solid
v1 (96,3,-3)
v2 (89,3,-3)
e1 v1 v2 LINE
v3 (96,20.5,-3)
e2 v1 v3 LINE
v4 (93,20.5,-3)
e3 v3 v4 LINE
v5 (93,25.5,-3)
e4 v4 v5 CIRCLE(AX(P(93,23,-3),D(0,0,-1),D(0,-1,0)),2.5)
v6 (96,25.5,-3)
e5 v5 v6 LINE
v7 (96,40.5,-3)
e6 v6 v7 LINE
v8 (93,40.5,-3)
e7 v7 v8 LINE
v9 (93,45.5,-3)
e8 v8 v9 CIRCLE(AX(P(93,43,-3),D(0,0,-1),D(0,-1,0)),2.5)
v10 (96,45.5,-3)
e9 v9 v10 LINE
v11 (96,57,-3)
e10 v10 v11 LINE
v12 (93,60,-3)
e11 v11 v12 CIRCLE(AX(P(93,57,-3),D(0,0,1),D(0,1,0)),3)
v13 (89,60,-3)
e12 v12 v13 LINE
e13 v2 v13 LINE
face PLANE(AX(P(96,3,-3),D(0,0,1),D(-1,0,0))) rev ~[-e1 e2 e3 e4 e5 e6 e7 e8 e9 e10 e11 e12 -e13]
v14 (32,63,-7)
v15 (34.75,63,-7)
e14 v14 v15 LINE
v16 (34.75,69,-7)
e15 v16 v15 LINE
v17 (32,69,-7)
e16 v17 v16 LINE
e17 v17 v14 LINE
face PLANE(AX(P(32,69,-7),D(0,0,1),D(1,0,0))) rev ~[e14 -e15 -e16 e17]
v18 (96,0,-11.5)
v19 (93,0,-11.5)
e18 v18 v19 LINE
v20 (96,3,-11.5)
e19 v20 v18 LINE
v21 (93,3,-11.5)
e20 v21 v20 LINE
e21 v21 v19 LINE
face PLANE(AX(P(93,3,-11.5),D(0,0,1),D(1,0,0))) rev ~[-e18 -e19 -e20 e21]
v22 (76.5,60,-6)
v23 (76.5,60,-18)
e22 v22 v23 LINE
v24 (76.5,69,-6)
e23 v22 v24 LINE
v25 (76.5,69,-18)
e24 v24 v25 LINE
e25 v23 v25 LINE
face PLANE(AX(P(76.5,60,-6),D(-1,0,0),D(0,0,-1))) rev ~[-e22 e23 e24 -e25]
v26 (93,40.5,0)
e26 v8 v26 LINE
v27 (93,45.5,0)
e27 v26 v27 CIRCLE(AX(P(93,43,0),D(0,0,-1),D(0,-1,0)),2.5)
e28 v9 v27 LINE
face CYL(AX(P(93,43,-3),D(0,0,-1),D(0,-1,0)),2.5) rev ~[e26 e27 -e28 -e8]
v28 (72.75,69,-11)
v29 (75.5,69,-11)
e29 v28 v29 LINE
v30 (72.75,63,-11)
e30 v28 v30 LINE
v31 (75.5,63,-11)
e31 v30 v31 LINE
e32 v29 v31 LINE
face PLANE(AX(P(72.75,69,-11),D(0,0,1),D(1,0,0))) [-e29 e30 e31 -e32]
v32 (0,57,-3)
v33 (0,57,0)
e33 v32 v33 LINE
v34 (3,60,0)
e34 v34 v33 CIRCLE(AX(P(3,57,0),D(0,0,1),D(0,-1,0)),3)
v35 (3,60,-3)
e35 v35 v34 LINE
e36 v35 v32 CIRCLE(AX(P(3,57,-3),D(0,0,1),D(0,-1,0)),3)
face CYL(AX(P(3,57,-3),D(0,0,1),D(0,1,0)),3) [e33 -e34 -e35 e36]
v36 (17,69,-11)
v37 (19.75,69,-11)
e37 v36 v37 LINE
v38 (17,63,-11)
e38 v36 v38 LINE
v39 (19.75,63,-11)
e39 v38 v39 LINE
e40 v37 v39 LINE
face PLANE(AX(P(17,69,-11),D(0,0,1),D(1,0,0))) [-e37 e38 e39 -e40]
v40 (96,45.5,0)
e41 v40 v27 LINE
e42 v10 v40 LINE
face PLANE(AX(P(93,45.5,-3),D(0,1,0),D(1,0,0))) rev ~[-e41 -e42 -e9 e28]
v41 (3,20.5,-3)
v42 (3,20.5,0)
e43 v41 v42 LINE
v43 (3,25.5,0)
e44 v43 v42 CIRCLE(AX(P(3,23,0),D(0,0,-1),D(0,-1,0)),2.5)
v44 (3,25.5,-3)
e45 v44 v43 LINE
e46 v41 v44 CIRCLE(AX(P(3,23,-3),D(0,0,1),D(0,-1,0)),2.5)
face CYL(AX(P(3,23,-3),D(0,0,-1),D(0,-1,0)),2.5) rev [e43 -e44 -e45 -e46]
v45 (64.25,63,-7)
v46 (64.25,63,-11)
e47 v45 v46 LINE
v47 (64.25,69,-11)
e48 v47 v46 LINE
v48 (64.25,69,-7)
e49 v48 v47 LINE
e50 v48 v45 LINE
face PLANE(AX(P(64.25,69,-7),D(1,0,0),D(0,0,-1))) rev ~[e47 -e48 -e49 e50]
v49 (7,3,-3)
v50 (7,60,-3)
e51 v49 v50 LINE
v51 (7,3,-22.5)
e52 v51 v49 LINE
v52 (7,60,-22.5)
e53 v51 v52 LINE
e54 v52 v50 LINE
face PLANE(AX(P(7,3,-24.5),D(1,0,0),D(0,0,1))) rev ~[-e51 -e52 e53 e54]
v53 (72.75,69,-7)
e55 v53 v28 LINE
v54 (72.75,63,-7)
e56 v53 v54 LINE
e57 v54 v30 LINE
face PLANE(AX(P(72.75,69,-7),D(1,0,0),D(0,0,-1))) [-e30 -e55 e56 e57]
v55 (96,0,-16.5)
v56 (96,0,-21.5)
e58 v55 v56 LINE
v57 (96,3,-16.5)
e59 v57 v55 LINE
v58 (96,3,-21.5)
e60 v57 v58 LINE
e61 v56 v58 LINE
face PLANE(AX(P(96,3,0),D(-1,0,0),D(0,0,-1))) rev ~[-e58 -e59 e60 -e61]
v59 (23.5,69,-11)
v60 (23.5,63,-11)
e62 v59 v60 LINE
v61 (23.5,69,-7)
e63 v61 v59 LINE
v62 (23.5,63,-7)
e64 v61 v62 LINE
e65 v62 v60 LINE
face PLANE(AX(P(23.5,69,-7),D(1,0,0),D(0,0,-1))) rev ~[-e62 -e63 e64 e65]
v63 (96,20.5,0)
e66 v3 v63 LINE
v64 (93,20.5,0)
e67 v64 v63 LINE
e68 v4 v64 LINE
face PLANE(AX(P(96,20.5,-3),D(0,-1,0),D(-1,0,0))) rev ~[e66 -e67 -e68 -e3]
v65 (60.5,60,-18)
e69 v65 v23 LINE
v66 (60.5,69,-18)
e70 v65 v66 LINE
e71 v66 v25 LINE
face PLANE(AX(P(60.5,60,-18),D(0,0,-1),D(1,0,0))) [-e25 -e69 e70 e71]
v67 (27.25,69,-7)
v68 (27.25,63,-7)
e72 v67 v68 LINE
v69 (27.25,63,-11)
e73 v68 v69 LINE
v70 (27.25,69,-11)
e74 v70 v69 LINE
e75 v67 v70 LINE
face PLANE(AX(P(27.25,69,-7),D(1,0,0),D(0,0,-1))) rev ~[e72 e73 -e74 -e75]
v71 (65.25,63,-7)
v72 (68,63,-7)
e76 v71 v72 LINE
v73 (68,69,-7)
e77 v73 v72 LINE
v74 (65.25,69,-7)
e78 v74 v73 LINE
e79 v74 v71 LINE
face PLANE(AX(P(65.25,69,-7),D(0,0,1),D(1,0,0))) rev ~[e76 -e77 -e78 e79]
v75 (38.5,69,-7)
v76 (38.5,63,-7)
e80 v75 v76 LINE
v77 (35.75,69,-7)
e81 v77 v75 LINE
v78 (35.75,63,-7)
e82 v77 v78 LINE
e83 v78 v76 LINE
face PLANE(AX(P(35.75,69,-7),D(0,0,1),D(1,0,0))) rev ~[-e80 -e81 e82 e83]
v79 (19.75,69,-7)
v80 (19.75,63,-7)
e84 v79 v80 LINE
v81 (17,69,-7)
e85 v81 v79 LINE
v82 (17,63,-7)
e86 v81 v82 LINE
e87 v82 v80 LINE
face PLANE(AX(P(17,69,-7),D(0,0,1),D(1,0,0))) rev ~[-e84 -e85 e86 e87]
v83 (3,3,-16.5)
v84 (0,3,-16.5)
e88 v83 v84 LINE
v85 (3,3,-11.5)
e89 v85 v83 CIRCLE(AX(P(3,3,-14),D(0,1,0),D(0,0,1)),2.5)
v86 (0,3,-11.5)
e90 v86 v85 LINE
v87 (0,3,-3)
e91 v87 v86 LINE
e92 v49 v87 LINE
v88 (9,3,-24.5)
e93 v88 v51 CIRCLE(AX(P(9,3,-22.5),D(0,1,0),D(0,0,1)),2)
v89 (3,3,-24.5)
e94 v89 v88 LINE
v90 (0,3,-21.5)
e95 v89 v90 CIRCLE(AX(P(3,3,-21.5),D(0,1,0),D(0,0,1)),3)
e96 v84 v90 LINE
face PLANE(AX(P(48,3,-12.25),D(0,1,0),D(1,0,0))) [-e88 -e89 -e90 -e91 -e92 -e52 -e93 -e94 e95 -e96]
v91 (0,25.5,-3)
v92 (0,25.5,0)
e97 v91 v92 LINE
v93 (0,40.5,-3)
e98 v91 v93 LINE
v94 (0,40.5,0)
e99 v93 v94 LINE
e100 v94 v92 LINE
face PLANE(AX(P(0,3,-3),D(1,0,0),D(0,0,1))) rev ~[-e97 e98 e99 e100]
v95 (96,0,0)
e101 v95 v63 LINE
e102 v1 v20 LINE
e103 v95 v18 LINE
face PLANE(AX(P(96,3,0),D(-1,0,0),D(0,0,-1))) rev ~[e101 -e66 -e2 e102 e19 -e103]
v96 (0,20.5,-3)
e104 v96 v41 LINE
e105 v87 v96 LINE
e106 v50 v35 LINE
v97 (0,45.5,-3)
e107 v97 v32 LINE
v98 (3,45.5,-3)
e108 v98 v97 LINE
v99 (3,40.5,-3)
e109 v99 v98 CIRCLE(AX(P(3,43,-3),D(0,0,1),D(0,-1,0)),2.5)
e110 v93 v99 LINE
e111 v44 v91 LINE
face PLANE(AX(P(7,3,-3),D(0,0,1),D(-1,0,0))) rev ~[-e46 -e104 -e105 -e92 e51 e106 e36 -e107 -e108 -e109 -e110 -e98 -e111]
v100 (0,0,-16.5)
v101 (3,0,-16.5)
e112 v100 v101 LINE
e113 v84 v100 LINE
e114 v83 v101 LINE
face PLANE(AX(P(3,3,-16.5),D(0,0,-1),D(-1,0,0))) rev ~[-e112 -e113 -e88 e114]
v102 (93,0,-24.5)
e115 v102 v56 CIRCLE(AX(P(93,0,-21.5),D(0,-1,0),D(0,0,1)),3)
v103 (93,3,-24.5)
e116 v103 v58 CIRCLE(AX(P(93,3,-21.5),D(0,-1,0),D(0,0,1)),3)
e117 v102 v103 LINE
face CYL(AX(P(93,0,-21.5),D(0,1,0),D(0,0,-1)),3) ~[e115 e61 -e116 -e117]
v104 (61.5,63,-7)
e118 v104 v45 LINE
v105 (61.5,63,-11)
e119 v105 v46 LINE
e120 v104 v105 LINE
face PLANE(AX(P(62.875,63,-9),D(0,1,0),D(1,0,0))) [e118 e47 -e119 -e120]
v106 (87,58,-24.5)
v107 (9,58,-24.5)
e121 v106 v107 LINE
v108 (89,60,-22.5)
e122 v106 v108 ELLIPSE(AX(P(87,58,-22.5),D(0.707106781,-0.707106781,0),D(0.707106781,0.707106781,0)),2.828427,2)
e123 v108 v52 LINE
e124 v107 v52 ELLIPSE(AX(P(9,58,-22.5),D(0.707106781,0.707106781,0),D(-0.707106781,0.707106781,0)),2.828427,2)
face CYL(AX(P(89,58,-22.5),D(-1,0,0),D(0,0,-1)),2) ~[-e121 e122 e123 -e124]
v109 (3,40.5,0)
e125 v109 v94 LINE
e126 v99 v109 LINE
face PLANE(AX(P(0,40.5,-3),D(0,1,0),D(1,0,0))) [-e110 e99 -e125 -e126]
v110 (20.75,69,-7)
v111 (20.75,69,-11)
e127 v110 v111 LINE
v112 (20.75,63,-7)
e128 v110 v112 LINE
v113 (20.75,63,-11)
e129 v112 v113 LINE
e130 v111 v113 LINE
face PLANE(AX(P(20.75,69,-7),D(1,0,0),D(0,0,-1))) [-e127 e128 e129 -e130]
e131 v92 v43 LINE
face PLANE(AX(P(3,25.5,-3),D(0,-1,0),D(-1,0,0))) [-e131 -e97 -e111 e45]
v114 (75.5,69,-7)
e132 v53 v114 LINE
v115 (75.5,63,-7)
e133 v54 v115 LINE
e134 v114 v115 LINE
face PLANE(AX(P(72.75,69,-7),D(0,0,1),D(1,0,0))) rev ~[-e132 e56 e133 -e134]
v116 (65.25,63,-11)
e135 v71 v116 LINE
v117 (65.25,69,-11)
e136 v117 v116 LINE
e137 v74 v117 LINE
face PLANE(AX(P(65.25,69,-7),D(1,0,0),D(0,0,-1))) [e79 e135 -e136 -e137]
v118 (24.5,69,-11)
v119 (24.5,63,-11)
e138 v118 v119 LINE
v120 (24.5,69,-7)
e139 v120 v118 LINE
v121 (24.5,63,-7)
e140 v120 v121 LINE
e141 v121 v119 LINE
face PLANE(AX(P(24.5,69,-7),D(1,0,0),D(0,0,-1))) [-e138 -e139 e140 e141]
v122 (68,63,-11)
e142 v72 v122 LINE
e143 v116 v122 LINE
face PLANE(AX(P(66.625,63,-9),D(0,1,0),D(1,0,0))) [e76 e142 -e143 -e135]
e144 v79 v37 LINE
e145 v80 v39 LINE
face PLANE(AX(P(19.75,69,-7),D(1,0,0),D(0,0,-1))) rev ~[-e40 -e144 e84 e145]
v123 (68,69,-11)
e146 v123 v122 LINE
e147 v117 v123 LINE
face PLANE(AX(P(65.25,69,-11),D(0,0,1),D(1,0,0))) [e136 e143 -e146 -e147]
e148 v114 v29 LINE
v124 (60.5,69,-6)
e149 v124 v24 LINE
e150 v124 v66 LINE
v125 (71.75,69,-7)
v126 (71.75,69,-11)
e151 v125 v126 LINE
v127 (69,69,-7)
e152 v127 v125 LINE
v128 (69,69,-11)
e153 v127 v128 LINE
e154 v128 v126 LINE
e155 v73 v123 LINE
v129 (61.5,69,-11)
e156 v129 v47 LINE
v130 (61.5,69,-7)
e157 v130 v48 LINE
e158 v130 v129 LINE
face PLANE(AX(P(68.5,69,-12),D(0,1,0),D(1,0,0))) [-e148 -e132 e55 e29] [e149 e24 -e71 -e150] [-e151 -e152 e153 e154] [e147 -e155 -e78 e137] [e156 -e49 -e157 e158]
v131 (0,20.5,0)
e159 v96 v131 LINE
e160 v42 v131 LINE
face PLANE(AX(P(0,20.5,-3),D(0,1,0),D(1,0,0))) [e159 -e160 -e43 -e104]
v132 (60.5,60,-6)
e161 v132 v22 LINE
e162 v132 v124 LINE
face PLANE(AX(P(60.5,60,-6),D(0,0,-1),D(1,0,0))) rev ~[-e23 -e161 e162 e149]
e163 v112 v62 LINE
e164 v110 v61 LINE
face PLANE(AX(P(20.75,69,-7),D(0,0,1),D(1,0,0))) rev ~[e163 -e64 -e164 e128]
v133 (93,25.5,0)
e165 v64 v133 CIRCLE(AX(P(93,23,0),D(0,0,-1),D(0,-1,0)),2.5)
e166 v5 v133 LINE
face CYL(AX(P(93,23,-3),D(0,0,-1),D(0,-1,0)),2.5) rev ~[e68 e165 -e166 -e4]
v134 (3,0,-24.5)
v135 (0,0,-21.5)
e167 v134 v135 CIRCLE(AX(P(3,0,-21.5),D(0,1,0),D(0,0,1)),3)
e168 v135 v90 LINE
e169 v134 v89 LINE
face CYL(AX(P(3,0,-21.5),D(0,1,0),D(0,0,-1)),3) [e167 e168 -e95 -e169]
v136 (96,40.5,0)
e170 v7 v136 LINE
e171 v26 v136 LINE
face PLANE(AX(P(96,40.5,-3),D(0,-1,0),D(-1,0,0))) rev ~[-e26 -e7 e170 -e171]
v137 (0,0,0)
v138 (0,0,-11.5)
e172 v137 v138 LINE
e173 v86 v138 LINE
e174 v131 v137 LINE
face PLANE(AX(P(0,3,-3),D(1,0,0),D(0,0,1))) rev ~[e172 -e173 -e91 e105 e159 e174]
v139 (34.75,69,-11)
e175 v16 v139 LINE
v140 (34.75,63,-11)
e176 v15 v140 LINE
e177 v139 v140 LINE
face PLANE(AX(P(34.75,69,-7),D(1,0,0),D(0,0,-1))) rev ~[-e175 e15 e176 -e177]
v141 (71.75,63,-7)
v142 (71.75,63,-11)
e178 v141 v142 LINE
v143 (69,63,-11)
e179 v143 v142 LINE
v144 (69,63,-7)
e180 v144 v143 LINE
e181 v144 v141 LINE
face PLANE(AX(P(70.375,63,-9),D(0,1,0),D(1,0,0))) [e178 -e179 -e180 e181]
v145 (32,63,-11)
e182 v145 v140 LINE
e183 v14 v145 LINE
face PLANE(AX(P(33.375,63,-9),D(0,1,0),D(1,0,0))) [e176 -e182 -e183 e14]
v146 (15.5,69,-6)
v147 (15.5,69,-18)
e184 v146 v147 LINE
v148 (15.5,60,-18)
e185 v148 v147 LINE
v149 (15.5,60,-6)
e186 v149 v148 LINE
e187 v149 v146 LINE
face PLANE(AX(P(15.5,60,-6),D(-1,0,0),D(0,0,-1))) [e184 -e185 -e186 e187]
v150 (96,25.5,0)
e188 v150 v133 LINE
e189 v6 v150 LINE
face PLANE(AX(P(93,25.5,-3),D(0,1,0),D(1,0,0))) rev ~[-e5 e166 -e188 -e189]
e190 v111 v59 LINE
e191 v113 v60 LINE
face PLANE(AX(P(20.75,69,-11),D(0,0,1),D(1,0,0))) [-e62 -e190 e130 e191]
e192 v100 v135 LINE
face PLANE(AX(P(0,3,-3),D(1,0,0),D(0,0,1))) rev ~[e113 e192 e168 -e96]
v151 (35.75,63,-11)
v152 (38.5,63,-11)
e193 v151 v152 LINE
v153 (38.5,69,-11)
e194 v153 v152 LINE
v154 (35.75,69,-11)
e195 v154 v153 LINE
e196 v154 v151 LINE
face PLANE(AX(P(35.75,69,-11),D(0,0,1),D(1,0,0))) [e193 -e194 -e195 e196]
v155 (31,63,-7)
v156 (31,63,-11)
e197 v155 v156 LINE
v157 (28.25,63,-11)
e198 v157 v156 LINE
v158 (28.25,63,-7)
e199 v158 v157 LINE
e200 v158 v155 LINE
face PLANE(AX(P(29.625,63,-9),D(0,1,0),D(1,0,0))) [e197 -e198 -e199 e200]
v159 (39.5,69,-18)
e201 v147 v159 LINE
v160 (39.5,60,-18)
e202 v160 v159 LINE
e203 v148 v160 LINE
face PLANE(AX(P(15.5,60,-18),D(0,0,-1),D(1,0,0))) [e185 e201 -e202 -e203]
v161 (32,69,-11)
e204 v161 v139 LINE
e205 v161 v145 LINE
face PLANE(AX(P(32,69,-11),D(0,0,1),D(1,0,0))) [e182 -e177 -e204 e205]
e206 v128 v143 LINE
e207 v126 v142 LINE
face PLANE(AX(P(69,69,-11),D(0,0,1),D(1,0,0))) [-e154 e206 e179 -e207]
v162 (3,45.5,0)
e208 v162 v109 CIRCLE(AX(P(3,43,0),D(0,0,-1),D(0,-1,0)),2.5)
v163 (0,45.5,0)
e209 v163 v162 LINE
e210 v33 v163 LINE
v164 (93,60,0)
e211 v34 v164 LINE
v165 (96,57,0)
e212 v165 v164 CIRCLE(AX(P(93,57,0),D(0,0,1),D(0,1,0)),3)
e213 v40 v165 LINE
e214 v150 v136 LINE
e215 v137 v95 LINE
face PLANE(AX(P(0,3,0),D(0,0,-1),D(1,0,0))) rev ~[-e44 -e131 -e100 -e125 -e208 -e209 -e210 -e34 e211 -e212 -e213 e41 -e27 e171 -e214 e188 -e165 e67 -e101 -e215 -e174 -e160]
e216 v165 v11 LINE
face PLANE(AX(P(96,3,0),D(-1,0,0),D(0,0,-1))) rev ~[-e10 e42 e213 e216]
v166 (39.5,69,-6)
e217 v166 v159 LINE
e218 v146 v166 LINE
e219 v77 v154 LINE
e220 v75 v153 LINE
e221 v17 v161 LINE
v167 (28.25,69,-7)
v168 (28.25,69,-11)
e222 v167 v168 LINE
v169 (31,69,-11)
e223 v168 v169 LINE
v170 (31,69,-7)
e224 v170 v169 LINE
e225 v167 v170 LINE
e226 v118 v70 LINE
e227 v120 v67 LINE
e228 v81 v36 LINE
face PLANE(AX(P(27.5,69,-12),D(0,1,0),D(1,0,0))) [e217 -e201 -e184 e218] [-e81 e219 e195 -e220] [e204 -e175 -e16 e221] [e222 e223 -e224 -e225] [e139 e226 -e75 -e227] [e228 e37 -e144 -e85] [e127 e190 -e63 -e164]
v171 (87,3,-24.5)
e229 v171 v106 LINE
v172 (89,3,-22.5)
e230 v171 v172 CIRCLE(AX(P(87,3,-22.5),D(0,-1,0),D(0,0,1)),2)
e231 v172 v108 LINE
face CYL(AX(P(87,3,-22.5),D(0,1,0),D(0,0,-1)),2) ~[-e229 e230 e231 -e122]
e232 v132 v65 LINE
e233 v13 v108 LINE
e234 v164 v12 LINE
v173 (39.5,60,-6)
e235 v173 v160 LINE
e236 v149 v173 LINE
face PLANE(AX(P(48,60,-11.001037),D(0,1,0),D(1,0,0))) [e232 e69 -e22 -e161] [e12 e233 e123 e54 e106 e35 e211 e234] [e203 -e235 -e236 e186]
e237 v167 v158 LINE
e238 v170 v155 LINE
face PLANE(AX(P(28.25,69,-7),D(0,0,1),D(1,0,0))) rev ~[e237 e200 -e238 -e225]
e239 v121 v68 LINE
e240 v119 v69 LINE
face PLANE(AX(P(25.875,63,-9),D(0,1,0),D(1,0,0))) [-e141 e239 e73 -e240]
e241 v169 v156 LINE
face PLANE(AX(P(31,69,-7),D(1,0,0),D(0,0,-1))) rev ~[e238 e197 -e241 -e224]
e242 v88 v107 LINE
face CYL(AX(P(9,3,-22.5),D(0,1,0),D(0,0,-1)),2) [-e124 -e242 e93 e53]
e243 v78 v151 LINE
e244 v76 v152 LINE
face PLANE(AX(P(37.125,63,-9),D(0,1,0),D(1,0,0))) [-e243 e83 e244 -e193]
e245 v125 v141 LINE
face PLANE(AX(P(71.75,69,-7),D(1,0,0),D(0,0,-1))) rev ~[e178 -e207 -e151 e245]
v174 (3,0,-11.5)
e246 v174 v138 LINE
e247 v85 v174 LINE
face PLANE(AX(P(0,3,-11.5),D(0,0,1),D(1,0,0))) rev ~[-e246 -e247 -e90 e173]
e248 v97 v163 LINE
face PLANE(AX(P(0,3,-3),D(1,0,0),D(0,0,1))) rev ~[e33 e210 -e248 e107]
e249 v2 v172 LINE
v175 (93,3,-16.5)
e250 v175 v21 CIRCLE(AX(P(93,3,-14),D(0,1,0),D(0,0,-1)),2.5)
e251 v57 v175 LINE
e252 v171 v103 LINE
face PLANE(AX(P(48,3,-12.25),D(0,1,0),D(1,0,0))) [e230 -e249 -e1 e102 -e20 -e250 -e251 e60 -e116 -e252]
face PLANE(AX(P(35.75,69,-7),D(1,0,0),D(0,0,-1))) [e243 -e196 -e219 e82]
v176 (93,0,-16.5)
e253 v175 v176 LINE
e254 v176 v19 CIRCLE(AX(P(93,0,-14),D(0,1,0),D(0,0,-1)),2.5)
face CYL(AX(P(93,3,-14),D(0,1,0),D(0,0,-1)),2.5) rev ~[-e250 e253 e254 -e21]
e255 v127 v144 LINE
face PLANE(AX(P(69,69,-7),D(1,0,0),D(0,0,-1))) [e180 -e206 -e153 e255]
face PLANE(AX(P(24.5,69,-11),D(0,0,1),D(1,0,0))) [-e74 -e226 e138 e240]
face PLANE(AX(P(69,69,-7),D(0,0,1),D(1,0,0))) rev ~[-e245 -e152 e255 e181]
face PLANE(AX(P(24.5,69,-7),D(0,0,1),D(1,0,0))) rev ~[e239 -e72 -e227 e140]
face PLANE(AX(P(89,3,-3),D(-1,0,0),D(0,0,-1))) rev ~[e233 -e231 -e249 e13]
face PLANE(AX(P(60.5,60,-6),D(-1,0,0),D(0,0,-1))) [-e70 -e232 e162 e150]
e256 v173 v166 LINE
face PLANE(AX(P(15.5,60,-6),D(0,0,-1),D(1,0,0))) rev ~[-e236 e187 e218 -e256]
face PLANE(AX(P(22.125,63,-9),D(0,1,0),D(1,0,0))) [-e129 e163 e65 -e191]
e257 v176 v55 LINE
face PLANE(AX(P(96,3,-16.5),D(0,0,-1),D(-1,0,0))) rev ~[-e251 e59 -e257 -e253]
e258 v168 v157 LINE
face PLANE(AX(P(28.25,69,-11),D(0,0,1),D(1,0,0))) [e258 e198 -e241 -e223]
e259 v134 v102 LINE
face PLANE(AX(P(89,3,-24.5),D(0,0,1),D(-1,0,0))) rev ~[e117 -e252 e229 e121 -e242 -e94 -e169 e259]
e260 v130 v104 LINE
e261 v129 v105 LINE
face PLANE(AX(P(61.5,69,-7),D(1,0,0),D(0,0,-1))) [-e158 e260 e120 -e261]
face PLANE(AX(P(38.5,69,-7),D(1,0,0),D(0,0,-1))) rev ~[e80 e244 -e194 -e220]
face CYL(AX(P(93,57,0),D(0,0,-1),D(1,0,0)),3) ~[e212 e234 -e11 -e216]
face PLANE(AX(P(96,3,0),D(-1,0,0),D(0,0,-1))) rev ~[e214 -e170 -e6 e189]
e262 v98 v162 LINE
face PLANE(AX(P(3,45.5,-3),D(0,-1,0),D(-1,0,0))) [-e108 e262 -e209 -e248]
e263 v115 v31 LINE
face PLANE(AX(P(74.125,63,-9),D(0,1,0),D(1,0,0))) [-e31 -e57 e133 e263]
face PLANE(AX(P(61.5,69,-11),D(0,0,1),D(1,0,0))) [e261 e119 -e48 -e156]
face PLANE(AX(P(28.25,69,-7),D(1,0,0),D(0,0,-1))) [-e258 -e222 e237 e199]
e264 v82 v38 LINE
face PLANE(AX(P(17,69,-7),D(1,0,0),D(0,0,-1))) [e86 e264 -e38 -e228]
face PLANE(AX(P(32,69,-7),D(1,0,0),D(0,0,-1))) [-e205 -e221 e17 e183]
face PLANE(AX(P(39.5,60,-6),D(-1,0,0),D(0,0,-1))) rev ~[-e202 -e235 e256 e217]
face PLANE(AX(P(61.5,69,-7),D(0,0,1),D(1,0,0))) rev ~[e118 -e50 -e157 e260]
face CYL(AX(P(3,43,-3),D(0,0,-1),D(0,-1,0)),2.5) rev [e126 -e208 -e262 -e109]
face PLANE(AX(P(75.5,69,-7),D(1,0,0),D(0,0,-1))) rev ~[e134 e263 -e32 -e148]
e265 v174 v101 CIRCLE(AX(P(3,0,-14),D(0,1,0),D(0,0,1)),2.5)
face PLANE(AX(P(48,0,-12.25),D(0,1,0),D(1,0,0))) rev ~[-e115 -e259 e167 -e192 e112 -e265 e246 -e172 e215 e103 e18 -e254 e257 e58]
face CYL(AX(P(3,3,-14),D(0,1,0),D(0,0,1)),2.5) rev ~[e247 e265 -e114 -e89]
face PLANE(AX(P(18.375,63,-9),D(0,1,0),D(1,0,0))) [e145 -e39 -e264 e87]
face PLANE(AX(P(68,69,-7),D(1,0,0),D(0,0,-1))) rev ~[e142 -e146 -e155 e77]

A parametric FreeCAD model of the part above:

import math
import FreeCAD as App
import Part
import Sketcher
Q = App.Units.Quantity


def edges_at(feature, points):
    """Names of the edges that pass closest to the given points."""
    edges = feature.Shape.Edges
    near = lambda p: min(range(len(edges)), key=lambda i: edges[i].distToShape(Part.Vertex(*p))[0])
    return sorted({f"Edge{near(p) + 1}" for p in points})

doc = App.newDocument("Part")
params = doc.addObject("Spreadsheet::Sheet", "Params")
for row, (alias, value) in enumerate([
    ("sketch1_width", "96 mm"),
    ("sketch1_height", "24.5 mm"),
    ("pad1_length", "3 mm"),
    ("sketch2_width", "96 mm"),
    ("sketch2_width2", "7 mm"),
    ("sketch2_height", "3 mm"),
    ("sketch2_height2", "21.5 mm"),
    ("pad2_length", "57 mm"),
    ("fillet_radius", "2 mm"),
    ("fillet2_radius", "3 mm"),
    ("sketch3_radius", "2.5 mm"),
    ("sketch3_width", "3 mm"),
    ("sketch4_radius", "2.5 mm"),
    ("sketch4_width", "3 mm"),
    ("sketch5_radius", "2.5 mm"),
    ("sketch5_width", "3 mm"),
    ("sketch6_radius", "2.5 mm"),
    ("sketch6_width", "3 mm"),
    ("sketch7_radius", "2.5 mm"),
    ("sketch7_width", "3 mm"),
    ("sketch8_radius", "2.5 mm"),
    ("sketch8_width", "3 mm"),
    ("sketch9_width", "16 mm"),
    ("sketch9_width2", "24 mm"),
    ("sketch9_height", "12 mm"),
    ("pad3_length", "9 mm"),
    ("sketch10_height", "4 mm"),
    ("sketch10_width", "2.75 mm"),
    ("pocket7_length", "6 mm"),
    ("linearpattern_pitch", "3.75 mm"),
    ("sketch11_height", "4 mm"),
    ("sketch11_width", "2.75 mm"),
    ("pocket8_length", "6 mm"),
    ("linearpattern2_pitch", "3.75 mm"),
], start=1):
    params.set(f"A{row}", alias)
    params.set(f"B{row}", "=" + value)
    params.setAlias(f"B{row}", alias)

body = doc.addObject("PartDesign::Body", "Body")

# Sketch on XZ plane
sketch1 = body.newObject("Sketcher::SketchObject", "Sketch")
sketch1.AttachmentSupport = (doc.getObject("XZ_Plane"), [""])
sketch1.MapMode = "FlatFace"
sketch1.addGeometry(Part.LineSegment(App.Vector(0, -24, 0), App.Vector(0, 0, 0)), False)
sketch1.addGeometry(Part.LineSegment(App.Vector(0, 0, 0), App.Vector(96, 0, 0)), False)
sketch1.addGeometry(Part.LineSegment(App.Vector(96, 0, 0), App.Vector(96, -24, 0)), False)
sketch1.addGeometry(Part.LineSegment(App.Vector(96, -24, 0), App.Vector(0, -24, 0)), False)
sketch1.addConstraint(Sketcher.Constraint("Coincident", 0, 2, 1, 1))
sketch1.addConstraint(Sketcher.Constraint("Coincident", 1, 2, 2, 1))
sketch1.addConstraint(Sketcher.Constraint("Coincident", 2, 2, 3, 1))
sketch1.addConstraint(Sketcher.Constraint("Coincident", 3, 2, 0, 1))
sketch1.addConstraint(Sketcher.Constraint("Vertical", 0))
sketch1.addConstraint(Sketcher.Constraint("Horizontal", 1))
sketch1.addConstraint(Sketcher.Constraint("Vertical", 2))
sketch1.addConstraint(Sketcher.Constraint("Horizontal", 3))
sketch1.addConstraint(Sketcher.Constraint("Coincident", 0, 2, -1, 1))
sketch1.addConstraint(Sketcher.Constraint("DistanceX", 1, 1, 1, 2, Q("96 mm")))
sketch1.addConstraint(Sketcher.Constraint("DistanceY", 0, 1, 0, 2, Q("24.5 mm")))
sketch1.setExpression("Constraints[9]", "Params.sketch1_width")
sketch1.setExpression("Constraints[10]", "Params.sketch1_height")
pad1 = body.newObject("PartDesign::Pad", "Pad")
pad1.Profile = sketch1
pad1.setExpression("Length", "Params.pad1_length")
pad1.Reversed = True

# Sketch on XZ plane
sketch2 = body.newObject("Sketcher::SketchObject", "Sketch001")
sketch2.AttachmentSupport = (doc.getObject("XZ_Plane"), [""])
sketch2.MapMode = "FlatFace"
sketch2.AttachmentOffset = App.Placement(App.Vector(0, 0, -3), App.Rotation())
sketch2.addGeometry(Part.LineSegment(App.Vector(0, 0, 0), App.Vector(96, 0, 0)), False)
sketch2.addGeometry(Part.LineSegment(App.Vector(96, 0, 0), App.Vector(96, -3, 0)), False)
sketch2.addGeometry(Part.LineSegment(App.Vector(96, -3, 0), App.Vector(89, -3, 0)), False)
sketch2.addGeometry(Part.LineSegment(App.Vector(89, -3, 0), App.Vector(89, -24.5, 0)), False)
sketch2.addGeometry(Part.LineSegment(App.Vector(89, -24.5, 0), App.Vector(7, -24.5, 0)), False)
sketch2.addGeometry(Part.LineSegment(App.Vector(7, -24.5, 0), App.Vector(7, -3, 0)), False)
sketch2.addGeometry(Part.LineSegment(App.Vector(7, -3, 0), App.Vector(0, -3, 0)), False)
sketch2.addGeometry(Part.LineSegment(App.Vector(0, -3, 0), App.Vector(0, 0, 0)), False)
sketch2.addConstraint(Sketcher.Constraint("Coincident", 0, 2, 1, 1))
sketch2.addConstraint(Sketcher.Constraint("Coincident", 1, 2, 2, 1))
sketch2.addConstraint(Sketcher.Constraint("Coincident", 2, 2, 3, 1))
sketch2.addConstraint(Sketcher.Constraint("Coincident", 3, 2, 4, 1))
sketch2.addConstraint(Sketcher.Constraint("Coincident", 4, 2, 5, 1))
sketch2.addConstraint(Sketcher.Constraint("Coincident", 5, 2, 6, 1))
sketch2.addConstraint(Sketcher.Constraint("Coincident", 6, 2, 7, 1))
sketch2.addConstraint(Sketcher.Constraint("Coincident", 7, 2, 0, 1))
sketch2.addConstraint(Sketcher.Constraint("Horizontal", 0))
sketch2.addConstraint(Sketcher.Constraint("Vertical", 1))
sketch2.addConstraint(Sketcher.Constraint("Horizontal", 2))
sketch2.addConstraint(Sketcher.Constraint("Vertical", 3))
sketch2.addConstraint(Sketcher.Constraint("Horizontal", 4))
sketch2.addConstraint(Sketcher.Constraint("Vertical", 5))
sketch2.addConstraint(Sketcher.Constraint("Horizontal", 6))
sketch2.addConstraint(Sketcher.Constraint("Vertical", 7))
sketch2.addConstraint(Sketcher.Constraint("Coincident", 7, 2, -1, 1))
sketch2.addConstraint(Sketcher.Constraint("Horizontal", 2, 2, 5, 2))
sketch2.addConstraint(Sketcher.Constraint("Equal", 2, 6))
sketch2.addConstraint(Sketcher.Constraint("DistanceX", 0, 1, 0, 2, Q("96 mm")))
sketch2.addConstraint(Sketcher.Constraint("DistanceX", 2, 2, 2, 1, Q("7 mm")))
sketch2.addConstraint(Sketcher.Constraint("DistanceY", 1, 2, 1, 1, Q("3 mm")))
sketch2.addConstraint(Sketcher.Constraint("DistanceY", 3, 2, 3, 1, Q("21.5 mm")))
sketch2.setExpression("Constraints[19]", "Params.sketch2_width")
sketch2.setExpression("Constraints[20]", "Params.sketch2_width2")
sketch2.setExpression("Constraints[21]", "Params.sketch2_height")
sketch2.setExpression("Constraints[22]", "Params.sketch2_height2")
pad2 = body.newObject("PartDesign::Pad", "Pad001")
pad2.Profile = sketch2
pad2.setExpression("Length", "Params.pad2_length")
pad2.Reversed = True
doc.recompute()

fillet = body.newObject("PartDesign::Fillet", "Fillet")
fillet.Base = (pad2, edges_at(pad2, [(89, 31.5, -24.5), (7, 31.5, -24.5), (48, 60, -24.5)]))
fillet.setExpression("Radius", "Params.fillet_radius")
doc.recompute()

fillet2 = body.newObject("PartDesign::Fillet", "Fillet001")
fillet2.Base = (fillet, edges_at(fillet, [
    (0, 60, -1.5),
    (96, 60, -1.5),
    (0, 1.5, -24.5),
    (96, 1.5, -24.5),
]))
fillet2.setExpression("Radius", "Params.fillet2_radius")

# Sketch on XY plane
sketch3 = body.newObject("Sketcher::SketchObject", "Sketch002")
sketch3.AttachmentSupport = (doc.getObject("XY_Plane"), [""])
sketch3.MapMode = "FlatFace"
sketch3.AttachmentOffset = App.Placement(App.Vector(0, 0, -3), App.Rotation())
sketch3.addGeometry(Part.LineSegment(App.Vector(93, 45.5, 0), App.Vector(96, 45.5, 0)), False)
sketch3.addGeometry(Part.LineSegment(App.Vector(96, 45.5, 0), App.Vector(96, 40.5, 0)), False)
sketch3.addGeometry(Part.LineSegment(App.Vector(96, 40.5, 0), App.Vector(93, 40.5, 0)), False)
sketch3.addGeometry(Part.ArcOfCircle(Part.Circle(App.Vector(93, 43, 0), App.Vector(0, 0, 1), 2.5), math.radians(90), math.radians(270)), False)
sketch3.addConstraint(Sketcher.Constraint("Coincident", 0, 2, 1, 1))
sketch3.addConstraint(Sketcher.Constraint("Coincident", 1, 2, 2, 1))
sketch3.addConstraint(Sketcher.Constraint("Tangent", 2, 2, 3, 2))
sketch3.addConstraint(Sketcher.Constraint("Tangent", 3, 1, 0, 1))
sketch3.addConstraint(Sketcher.Constraint("Horizontal", 0))
sketch3.addConstraint(Sketcher.Constraint("Vertical", 1))
sketch3.addConstraint(Sketcher.Constraint("Horizontal", 2))
sketch3.addConstraint(Sketcher.Constraint("Radius", 3, Q("2.5 mm")))
sketch3.addConstraint(Sketcher.Constraint("DistanceX", 0, 1, 0, 2, Q("3 mm")))
sketch3.addConstraint(Sketcher.Constraint("DistanceX", -1, 1, 3, 3, Q("93 mm")))
sketch3.addConstraint(Sketcher.Constraint("DistanceY", -1, 1, 3, 3, Q("43 mm")))
sketch3.setExpression("Constraints[7]", "Params.sketch3_radius")
sketch3.setExpression("Constraints[8]", "Params.sketch3_width")
pocket1 = body.newObject("PartDesign::Pocket", "Pocket")
pocket1.Profile = sketch3
pocket1.Type = "UpToFirst"
pocket1.Reversed = True

# Sketch on XY plane
sketch4 = body.newObject("Sketcher::SketchObject", "Sketch003")
sketch4.AttachmentSupport = (doc.getObject("XY_Plane"), [""])
sketch4.MapMode = "FlatFace"
sketch4.AttachmentOffset = App.Placement(App.Vector(0, 0, -3), App.Rotation())
sketch4.addGeometry(Part.LineSegment(App.Vector(93, 25.5, 0), App.Vector(96, 25.5, 0)), False)
sketch4.addGeometry(Part.LineSegment(App.Vector(96, 25.5, 0), App.Vector(96, 20.5, 0)), False)
sketch4.addGeometry(Part.LineSegment(App.Vector(96, 20.5, 0), App.Vector(93, 20.5, 0)), False)
sketch4.addGeometry(Part.ArcOfCircle(Part.Circle(App.Vector(93, 23, 0), App.Vector(0, 0, 1), 2.5), math.radians(90), math.radians(270)), False)
sketch4.addConstraint(Sketcher.Constraint("Coincident", 0, 2, 1, 1))
sketch4.addConstraint(Sketcher.Constraint("Coincident", 1, 2, 2, 1))
sketch4.addConstraint(Sketcher.Constraint("Tangent", 2, 2, 3, 2))
sketch4.addConstraint(Sketcher.Constraint("Tangent", 3, 1, 0, 1))
sketch4.addConstraint(Sketcher.Constraint("Horizontal", 0))
sketch4.addConstraint(Sketcher.Constraint("Vertical", 1))
sketch4.addConstraint(Sketcher.Constraint("Horizontal", 2))
sketch4.addConstraint(Sketcher.Constraint("Radius", 3, Q("2.5 mm")))
sketch4.addConstraint(Sketcher.Constraint("DistanceX", 0, 1, 0, 2, Q("3 mm")))
sketch4.addConstraint(Sketcher.Constraint("DistanceX", -1, 1, 3, 3, Q("93 mm")))
sketch4.addConstraint(Sketcher.Constraint("DistanceY", -1, 1, 3, 3, Q("23 mm")))
sketch4.setExpression("Constraints[7]", "Params.sketch4_radius")
sketch4.setExpression("Constraints[8]", "Params.sketch4_width")
pocket2 = body.newObject("PartDesign::Pocket", "Pocket001")
pocket2.Profile = sketch4
pocket2.Type = "UpToFirst"
pocket2.Reversed = True

# Sketch on XY plane
sketch5 = body.newObject("Sketcher::SketchObject", "Sketch004")
sketch5.AttachmentSupport = (doc.getObject("XY_Plane"), [""])
sketch5.MapMode = "FlatFace"
sketch5.AttachmentOffset = App.Placement(App.Vector(0, 0, -3), App.Rotation())
sketch5.addGeometry(Part.LineSegment(App.Vector(0, 25.5, 0), App.Vector(3, 25.5, 0)), False)
sketch5.addGeometry(Part.ArcOfCircle(Part.Circle(App.Vector(3, 23, 0), App.Vector(0, 0, 1), 2.5), math.radians(-90), math.radians(90)), False)
sketch5.addGeometry(Part.LineSegment(App.Vector(3, 20.5, 0), App.Vector(0, 20.5, 0)), False)
sketch5.addGeometry(Part.LineSegment(App.Vector(0, 20.5, 0), App.Vector(0, 25.5, 0)), False)
sketch5.addConstraint(Sketcher.Constraint("Tangent", 0, 2, 1, 2))
sketch5.addConstraint(Sketcher.Constraint("Tangent", 1, 1, 2, 1))
sketch5.addConstraint(Sketcher.Constraint("Coincident", 2, 2, 3, 1))
sketch5.addConstraint(Sketcher.Constraint("Coincident", 3, 2, 0, 1))
sketch5.addConstraint(Sketcher.Constraint("Horizontal", 0))
sketch5.addConstraint(Sketcher.Constraint("Horizontal", 2))
sketch5.addConstraint(Sketcher.Constraint("Vertical", 3))
sketch5.addConstraint(Sketcher.Constraint("PointOnObject", 2, 2, -2))
sketch5.addConstraint(Sketcher.Constraint("Radius", 1, Q("2.5 mm")))
sketch5.addConstraint(Sketcher.Constraint("DistanceX", 0, 1, 0, 2, Q("3 mm")))
sketch5.addConstraint(Sketcher.Constraint("DistanceY", -1, 1, 1, 3, Q("23 mm")))
sketch5.setExpression("Constraints[8]", "Params.sketch5_radius")
sketch5.setExpression("Constraints[9]", "Params.sketch5_width")
pocket3 = body.newObject("PartDesign::Pocket", "Pocket002")
pocket3.Profile = sketch5
pocket3.Type = "UpToFirst"
pocket3.Reversed = True

# Sketch on XY plane
sketch6 = body.newObject("Sketcher::SketchObject", "Sketch005")
sketch6.AttachmentSupport = (doc.getObject("XY_Plane"), [""])
sketch6.MapMode = "FlatFace"
sketch6.AttachmentOffset = App.Placement(App.Vector(0, 0, -3), App.Rotation())
sketch6.addGeometry(Part.LineSegment(App.Vector(0, 45.5, 0), App.Vector(3, 45.5, 0)), False)
sketch6.addGeometry(Part.ArcOfCircle(Part.Circle(App.Vector(3, 43, 0), App.Vector(0, 0, 1), 2.5), math.radians(-90), math.radians(90)), False)
sketch6.addGeometry(Part.LineSegment(App.Vector(3, 40.5, 0), App.Vector(0, 40.5, 0)), False)
sketch6.addGeometry(Part.LineSegment(App.Vector(0, 40.5, 0), App.Vector(0, 45.5, 0)), False)
sketch6.addConstraint(Sketcher.Constraint("Tangent", 0, 2, 1, 2))
sketch6.addConstraint(Sketcher.Constraint("Tangent", 1, 1, 2, 1))
sketch6.addConstraint(Sketcher.Constraint("Coincident", 2, 2, 3, 1))
sketch6.addConstraint(Sketcher.Constraint("Coincident", 3, 2, 0, 1))
sketch6.addConstraint(Sketcher.Constraint("Horizontal", 0))
sketch6.addConstraint(Sketcher.Constraint("Horizontal", 2))
sketch6.addConstraint(Sketcher.Constraint("Vertical", 3))
sketch6.addConstraint(Sketcher.Constraint("PointOnObject", 2, 2, -2))
sketch6.addConstraint(Sketcher.Constraint("Radius", 1, Q("2.5 mm")))
sketch6.addConstraint(Sketcher.Constraint("DistanceX", 0, 1, 0, 2, Q("3 mm")))
sketch6.addConstraint(Sketcher.Constraint("DistanceY", -1, 1, 1, 3, Q("43 mm")))
sketch6.setExpression("Constraints[8]", "Params.sketch6_radius")
sketch6.setExpression("Constraints[9]", "Params.sketch6_width")
pocket4 = body.newObject("PartDesign::Pocket", "Pocket003")
pocket4.Profile = sketch6
pocket4.Type = "UpToFirst"
pocket4.Reversed = True

# Sketch on XZ plane
sketch7 = body.newObject("Sketcher::SketchObject", "Sketch006")
sketch7.AttachmentSupport = (doc.getObject("XZ_Plane"), [""])
sketch7.MapMode = "FlatFace"
sketch7.AttachmentOffset = App.Placement(App.Vector(0, 0, -3), App.Rotation())
sketch7.addGeometry(Part.LineSegment(App.Vector(3, -16.5, 0), App.Vector(0, -16.5, 0)), False)
sketch7.addGeometry(Part.LineSegment(App.Vector(0, -16.5, 0), App.Vector(0, -11.5, 0)), False)
sketch7.addGeometry(Part.LineSegment(App.Vector(0, -11.5, 0), App.Vector(3, -11.5, 0)), False)
sketch7.addGeometry(Part.ArcOfCircle(Part.Circle(App.Vector(3, -14, 0), App.Vector(0, 0, 1), 2.5), math.radians(-90), math.radians(90)), False)
sketch7.addConstraint(Sketcher.Constraint("Coincident", 0, 2, 1, 1))
sketch7.addConstraint(Sketcher.Constraint("Coincident", 1, 2, 2, 1))
sketch7.addConstraint(Sketcher.Constraint("Tangent", 2, 2, 3, 2))
sketch7.addConstraint(Sketcher.Constraint("Tangent", 3, 1, 0, 1))
sketch7.addConstraint(Sketcher.Constraint("Horizontal", 0))
sketch7.addConstraint(Sketcher.Constraint("Vertical", 1))
sketch7.addConstraint(Sketcher.Constraint("Horizontal", 2))
sketch7.addConstraint(Sketcher.Constraint("PointOnObject", 0, 2, -2))
sketch7.addConstraint(Sketcher.Constraint("Radius", 3, Q("2.5 mm")))
sketch7.addConstraint(Sketcher.Constraint("DistanceX", 0, 2, 0, 1, Q("3 mm")))
sketch7.addConstraint(Sketcher.Constraint("DistanceY", 3, 3, -1, 1, Q("14 mm")))
sketch7.setExpression("Constraints[8]", "Params.sketch7_radius")
sketch7.setExpression("Constraints[9]", "Params.sketch7_width")
pocket5 = body.newObject("PartDesign::Pocket", "Pocket004")
pocket5.Profile = sketch7
pocket5.Type = "UpToFirst"
pocket5.Reversed = True

# Sketch on XZ plane
sketch8 = body.newObject("Sketcher::SketchObject", "Sketch007")
sketch8.AttachmentSupport = (doc.getObject("XZ_Plane"), [""])
sketch8.MapMode = "FlatFace"
sketch8.AttachmentOffset = App.Placement(App.Vector(0, 0, -3), App.Rotation())
sketch8.addGeometry(Part.LineSegment(App.Vector(93, -11.5, 0), App.Vector(96, -11.5, 0)), False)
sketch8.addGeometry(Part.LineSegment(App.Vector(96, -11.5, 0), App.Vector(96, -16.5, 0)), False)
sketch8.addGeometry(Part.LineSegment(App.Vector(96, -16.5, 0), App.Vector(93, -16.5, 0)), False)
sketch8.addGeometry(Part.ArcOfCircle(Part.Circle(App.Vector(93, -14, 0), App.Vector(0, 0, 1), 2.5), math.radians(90), math.radians(270)), False)
sketch8.addConstraint(Sketcher.Constraint("Coincident", 0, 2, 1, 1))
sketch8.addConstraint(Sketcher.Constraint("Coincident", 1, 2, 2, 1))
sketch8.addConstraint(Sketcher.Constraint("Tangent", 2, 2, 3, 2))
sketch8.addConstraint(Sketcher.Constraint("Tangent", 3, 1, 0, 1))
sketch8.addConstraint(Sketcher.Constraint("Horizontal", 0))
sketch8.addConstraint(Sketcher.Constraint("Vertical", 1))
sketch8.addConstraint(Sketcher.Constraint("Horizontal", 2))
sketch8.addConstraint(Sketcher.Constraint("Radius", 3, Q("2.5 mm")))
sketch8.addConstraint(Sketcher.Constraint("DistanceX", 0, 1, 0, 2, Q("3 mm")))
sketch8.addConstraint(Sketcher.Constraint("DistanceX", -1, 1, 3, 3, Q("93 mm")))
sketch8.addConstraint(Sketcher.Constraint("DistanceY", 3, 3, -1, 1, Q("14 mm")))
sketch8.setExpression("Constraints[7]", "Params.sketch8_radius")
sketch8.setExpression("Constraints[8]", "Params.sketch8_width")
pocket6 = body.newObject("PartDesign::Pocket", "Pocket005")
pocket6.Profile = sketch8
pocket6.Type = "UpToFirst"
pocket6.Reversed = True

# Sketch on XZ plane
sketch9 = body.newObject("Sketcher::SketchObject", "Sketch008")
sketch9.AttachmentSupport = (doc.getObject("XZ_Plane"), [""])
sketch9.MapMode = "FlatFace"
sketch9.AttachmentOffset = App.Placement(App.Vector(0, 0, -60), App.Rotation())
sketch9.addGeometry(Part.LineSegment(App.Vector(60, -18, 0), App.Vector(60, -6, 0)), False)
sketch9.addGeometry(Part.LineSegment(App.Vector(60, -6, 0), App.Vector(76, -6, 0)), False)
sketch9.addGeometry(Part.LineSegment(App.Vector(76, -6, 0), App.Vector(76, -18, 0)), False)
sketch9.addGeometry(Part.LineSegment(App.Vector(76, -18, 0), App.Vector(60, -18, 0)), False)
sketch9.addGeometry(Part.LineSegment(App.Vector(16, -18, 0), App.Vector(16, -6, 0)), False)
sketch9.addGeometry(Part.LineSegment(App.Vector(16, -6, 0), App.Vector(40, -6, 0)), False)
sketch9.addGeometry(Part.LineSegment(App.Vector(40, -6, 0), App.Vector(40, -18, 0)), False)
sketch9.addGeometry(Part.LineSegment(App.Vector(40, -18, 0), App.Vector(16, -18, 0)), False)
sketch9.addConstraint(Sketcher.Constraint("Coincident", 0, 2, 1, 1))
sketch9.addConstraint(Sketcher.Constraint("Coincident", 1, 2, 2, 1))
sketch9.addConstraint(Sketcher.Constraint("Coincident", 2, 2, 3, 1))
sketch9.addConstraint(Sketcher.Constraint("Coincident", 3, 2, 0, 1))
sketch9.addConstraint(Sketcher.Constraint("Coincident", 4, 2, 5, 1))
sketch9.addConstraint(Sketcher.Constraint("Coincident", 5, 2, 6, 1))
sketch9.addConstraint(Sketcher.Constraint("Coincident", 6, 2, 7, 1))
sketch9.addConstraint(Sketcher.Constraint("Coincident", 7, 2, 4, 1))
sketch9.addConstraint(Sketcher.Constraint("Vertical", 0))
sketch9.addConstraint(Sketcher.Constraint("Horizontal", 1))
sketch9.addConstraint(Sketcher.Constraint("Vertical", 2))
sketch9.addConstraint(Sketcher.Constraint("Horizontal", 3))
sketch9.addConstraint(Sketcher.Constraint("Vertical", 4))
sketch9.addConstraint(Sketcher.Constraint("Horizontal", 5))
sketch9.addConstraint(Sketcher.Constraint("Vertical", 6))
sketch9.addConstraint(Sketcher.Constraint("Horizontal", 7))
sketch9.addConstraint(Sketcher.Constraint("Horizontal", 1, 2, 4, 2))
sketch9.addConstraint(Sketcher.Constraint("Horizontal", 3, 2, 6, 2))
sketch9.addConstraint(Sketcher.Constraint("DistanceX", 1, 1, 1, 2, Q("16 mm")))
sketch9.addConstraint(Sketcher.Constraint("DistanceX", 5, 1, 5, 2, Q("24 mm")))
sketch9.addConstraint(Sketcher.Constraint("DistanceY", 0, 1, 0, 2, Q("12 mm")))
sketch9.addConstraint(Sketcher.Constraint("DistanceY", 0, 2, -1, 1, Q("6 mm")))
sketch9.addConstraint(Sketcher.Constraint("DistanceX", 4, 2, 0, 2, Q("45 mm")))
sketch9.addConstraint(Sketcher.Constraint("DistanceX", -1, 1, 0, 2, Q("60.5 mm")))
sketch9.setExpression("Constraints[18]", "Params.sketch9_width")
sketch9.setExpression("Constraints[19]", "Params.sketch9_width2")
sketch9.setExpression("Constraints[20]", "Params.sketch9_height")
pad3 = body.newObject("PartDesign::Pad", "Pad002")
pad3.Profile = sketch9
pad3.setExpression("Length", "Params.pad3_length")
pad3.Reversed = True

# Sketch on XZ plane
sketch10 = body.newObject("Sketcher::SketchObject", "Sketch009")
sketch10.AttachmentSupport = (doc.getObject("XZ_Plane"), [""])
sketch10.MapMode = "FlatFace"
sketch10.AttachmentOffset = App.Placement(App.Vector(0, 0, -69), App.Rotation())
sketch10.addGeometry(Part.LineSegment(App.Vector(72.8, -11, 0), App.Vector(72.8, -7, 0)), False)
sketch10.addGeometry(Part.LineSegment(App.Vector(72.8, -7, 0), App.Vector(75.5, -7, 0)), False)
sketch10.addGeometry(Part.LineSegment(App.Vector(75.5, -7, 0), App.Vector(75.5, -11, 0)), False)
sketch10.addGeometry(Part.LineSegment(App.Vector(75.5, -11, 0), App.Vector(72.8, -11, 0)), False)
sketch10.addConstraint(Sketcher.Constraint("Coincident", 0, 2, 1, 1))
sketch10.addConstraint(Sketcher.Constraint("Coincident", 1, 2, 2, 1))
sketch10.addConstraint(Sketcher.Constraint("Coincident", 2, 2, 3, 1))
sketch10.addConstraint(Sketcher.Constraint("Coincident", 3, 2, 0, 1))
sketch10.addConstraint(Sketcher.Constraint("Vertical", 0))
sketch10.addConstraint(Sketcher.Constraint("Horizontal", 1))
sketch10.addConstraint(Sketcher.Constraint("Vertical", 2))
sketch10.addConstraint(Sketcher.Constraint("Horizontal", 3))
sketch10.addConstraint(Sketcher.Constraint("DistanceY", 0, 1, 0, 2, Q("4 mm")))
sketch10.addConstraint(Sketcher.Constraint("DistanceY", 0, 2, -1, 1, Q("7 mm")))
sketch10.addConstraint(Sketcher.Constraint("DistanceX", 1, 1, 1, 2, Q("2.75 mm")))
sketch10.addConstraint(Sketcher.Constraint("DistanceX", -1, 1, 1, 2, Q("75.5 mm")))
sketch10.setExpression("Constraints[8]", "Params.sketch10_height")
sketch10.setExpression("Constraints[10]", "Params.sketch10_width")
pocket7 = body.newObject("PartDesign::Pocket", "Pocket006")
pocket7.Profile = sketch10
pocket7.setExpression("Length", "Params.pocket7_length")
pocket7.Reversed = True
doc.recompute()

linearpattern = body.newObject("PartDesign::LinearPattern", "LinearPattern")
linearpattern.Originals = [pocket7]
linearpattern.Direction = (doc.getObject("X_Axis"), [""])
linearpattern.Mode = "offset"
linearpattern.setExpression("Offset", "Params.linearpattern_pitch")
linearpattern.Occurrences = 4
linearpattern.Reversed = True
body.Tip = linearpattern

# Sketch on XZ plane
sketch11 = body.newObject("Sketcher::SketchObject", "Sketch010")
sketch11.AttachmentSupport = (doc.getObject("XZ_Plane"), [""])
sketch11.MapMode = "FlatFace"
sketch11.AttachmentOffset = App.Placement(App.Vector(0, 0, -69), App.Rotation())
sketch11.addGeometry(Part.LineSegment(App.Vector(35.8, -11, 0), App.Vector(35.8, -7, 0)), False)
sketch11.addGeometry(Part.LineSegment(App.Vector(35.8, -7, 0), App.Vector(38.5, -7, 0)), False)
sketch11.addGeometry(Part.LineSegment(App.Vector(38.5, -7, 0), App.Vector(38.5, -11, 0)), False)
sketch11.addGeometry(Part.LineSegment(App.Vector(38.5, -11, 0), App.Vector(35.8, -11, 0)), False)
sketch11.addConstraint(Sketcher.Constraint("Coincident", 0, 2, 1, 1))
sketch11.addConstraint(Sketcher.Constraint("Coincident", 1, 2, 2, 1))
sketch11.addConstraint(Sketcher.Constraint("Coincident", 2, 2, 3, 1))
sketch11.addConstraint(Sketcher.Constraint("Coincident", 3, 2, 0, 1))
sketch11.addConstraint(Sketcher.Constraint("Vertical", 0))
sketch11.addConstraint(Sketcher.Constraint("Horizontal", 1))
sketch11.addConstraint(Sketcher.Constraint("Vertical", 2))
sketch11.addConstraint(Sketcher.Constraint("Horizontal", 3))
sketch11.addConstraint(Sketcher.Constraint("DistanceY", 0, 1, 0, 2, Q("4 mm")))
sketch11.addConstraint(Sketcher.Constraint("DistanceY", 0, 2, -1, 1, Q("7 mm")))
sketch11.addConstraint(Sketcher.Constraint("DistanceX", 1, 1, 1, 2, Q("2.75 mm")))
sketch11.addConstraint(Sketcher.Constraint("DistanceX", -1, 1, 1, 2, Q("38.5 mm")))
sketch11.setExpression("Constraints[8]", "Params.sketch11_height")
sketch11.setExpression("Constraints[10]", "Params.sketch11_width")
pocket8 = body.newObject("PartDesign::Pocket", "Pocket007")
pocket8.Profile = sketch11
pocket8.setExpression("Length", "Params.pocket8_length")
pocket8.Reversed = True
doc.recompute()

linearpattern2 = body.newObject("PartDesign::LinearPattern", "LinearPattern001")
linearpattern2.Originals = [pocket8]
linearpattern2.Direction = (doc.getObject("X_Axis"), [""])
linearpattern2.Mode = "offset"
linearpattern2.setExpression("Offset", "Params.linearpattern2_pitch")
linearpattern2.Occurrences = 6
linearpattern2.Reversed = True
body.Tip = linearpattern2

doc.recompute()
